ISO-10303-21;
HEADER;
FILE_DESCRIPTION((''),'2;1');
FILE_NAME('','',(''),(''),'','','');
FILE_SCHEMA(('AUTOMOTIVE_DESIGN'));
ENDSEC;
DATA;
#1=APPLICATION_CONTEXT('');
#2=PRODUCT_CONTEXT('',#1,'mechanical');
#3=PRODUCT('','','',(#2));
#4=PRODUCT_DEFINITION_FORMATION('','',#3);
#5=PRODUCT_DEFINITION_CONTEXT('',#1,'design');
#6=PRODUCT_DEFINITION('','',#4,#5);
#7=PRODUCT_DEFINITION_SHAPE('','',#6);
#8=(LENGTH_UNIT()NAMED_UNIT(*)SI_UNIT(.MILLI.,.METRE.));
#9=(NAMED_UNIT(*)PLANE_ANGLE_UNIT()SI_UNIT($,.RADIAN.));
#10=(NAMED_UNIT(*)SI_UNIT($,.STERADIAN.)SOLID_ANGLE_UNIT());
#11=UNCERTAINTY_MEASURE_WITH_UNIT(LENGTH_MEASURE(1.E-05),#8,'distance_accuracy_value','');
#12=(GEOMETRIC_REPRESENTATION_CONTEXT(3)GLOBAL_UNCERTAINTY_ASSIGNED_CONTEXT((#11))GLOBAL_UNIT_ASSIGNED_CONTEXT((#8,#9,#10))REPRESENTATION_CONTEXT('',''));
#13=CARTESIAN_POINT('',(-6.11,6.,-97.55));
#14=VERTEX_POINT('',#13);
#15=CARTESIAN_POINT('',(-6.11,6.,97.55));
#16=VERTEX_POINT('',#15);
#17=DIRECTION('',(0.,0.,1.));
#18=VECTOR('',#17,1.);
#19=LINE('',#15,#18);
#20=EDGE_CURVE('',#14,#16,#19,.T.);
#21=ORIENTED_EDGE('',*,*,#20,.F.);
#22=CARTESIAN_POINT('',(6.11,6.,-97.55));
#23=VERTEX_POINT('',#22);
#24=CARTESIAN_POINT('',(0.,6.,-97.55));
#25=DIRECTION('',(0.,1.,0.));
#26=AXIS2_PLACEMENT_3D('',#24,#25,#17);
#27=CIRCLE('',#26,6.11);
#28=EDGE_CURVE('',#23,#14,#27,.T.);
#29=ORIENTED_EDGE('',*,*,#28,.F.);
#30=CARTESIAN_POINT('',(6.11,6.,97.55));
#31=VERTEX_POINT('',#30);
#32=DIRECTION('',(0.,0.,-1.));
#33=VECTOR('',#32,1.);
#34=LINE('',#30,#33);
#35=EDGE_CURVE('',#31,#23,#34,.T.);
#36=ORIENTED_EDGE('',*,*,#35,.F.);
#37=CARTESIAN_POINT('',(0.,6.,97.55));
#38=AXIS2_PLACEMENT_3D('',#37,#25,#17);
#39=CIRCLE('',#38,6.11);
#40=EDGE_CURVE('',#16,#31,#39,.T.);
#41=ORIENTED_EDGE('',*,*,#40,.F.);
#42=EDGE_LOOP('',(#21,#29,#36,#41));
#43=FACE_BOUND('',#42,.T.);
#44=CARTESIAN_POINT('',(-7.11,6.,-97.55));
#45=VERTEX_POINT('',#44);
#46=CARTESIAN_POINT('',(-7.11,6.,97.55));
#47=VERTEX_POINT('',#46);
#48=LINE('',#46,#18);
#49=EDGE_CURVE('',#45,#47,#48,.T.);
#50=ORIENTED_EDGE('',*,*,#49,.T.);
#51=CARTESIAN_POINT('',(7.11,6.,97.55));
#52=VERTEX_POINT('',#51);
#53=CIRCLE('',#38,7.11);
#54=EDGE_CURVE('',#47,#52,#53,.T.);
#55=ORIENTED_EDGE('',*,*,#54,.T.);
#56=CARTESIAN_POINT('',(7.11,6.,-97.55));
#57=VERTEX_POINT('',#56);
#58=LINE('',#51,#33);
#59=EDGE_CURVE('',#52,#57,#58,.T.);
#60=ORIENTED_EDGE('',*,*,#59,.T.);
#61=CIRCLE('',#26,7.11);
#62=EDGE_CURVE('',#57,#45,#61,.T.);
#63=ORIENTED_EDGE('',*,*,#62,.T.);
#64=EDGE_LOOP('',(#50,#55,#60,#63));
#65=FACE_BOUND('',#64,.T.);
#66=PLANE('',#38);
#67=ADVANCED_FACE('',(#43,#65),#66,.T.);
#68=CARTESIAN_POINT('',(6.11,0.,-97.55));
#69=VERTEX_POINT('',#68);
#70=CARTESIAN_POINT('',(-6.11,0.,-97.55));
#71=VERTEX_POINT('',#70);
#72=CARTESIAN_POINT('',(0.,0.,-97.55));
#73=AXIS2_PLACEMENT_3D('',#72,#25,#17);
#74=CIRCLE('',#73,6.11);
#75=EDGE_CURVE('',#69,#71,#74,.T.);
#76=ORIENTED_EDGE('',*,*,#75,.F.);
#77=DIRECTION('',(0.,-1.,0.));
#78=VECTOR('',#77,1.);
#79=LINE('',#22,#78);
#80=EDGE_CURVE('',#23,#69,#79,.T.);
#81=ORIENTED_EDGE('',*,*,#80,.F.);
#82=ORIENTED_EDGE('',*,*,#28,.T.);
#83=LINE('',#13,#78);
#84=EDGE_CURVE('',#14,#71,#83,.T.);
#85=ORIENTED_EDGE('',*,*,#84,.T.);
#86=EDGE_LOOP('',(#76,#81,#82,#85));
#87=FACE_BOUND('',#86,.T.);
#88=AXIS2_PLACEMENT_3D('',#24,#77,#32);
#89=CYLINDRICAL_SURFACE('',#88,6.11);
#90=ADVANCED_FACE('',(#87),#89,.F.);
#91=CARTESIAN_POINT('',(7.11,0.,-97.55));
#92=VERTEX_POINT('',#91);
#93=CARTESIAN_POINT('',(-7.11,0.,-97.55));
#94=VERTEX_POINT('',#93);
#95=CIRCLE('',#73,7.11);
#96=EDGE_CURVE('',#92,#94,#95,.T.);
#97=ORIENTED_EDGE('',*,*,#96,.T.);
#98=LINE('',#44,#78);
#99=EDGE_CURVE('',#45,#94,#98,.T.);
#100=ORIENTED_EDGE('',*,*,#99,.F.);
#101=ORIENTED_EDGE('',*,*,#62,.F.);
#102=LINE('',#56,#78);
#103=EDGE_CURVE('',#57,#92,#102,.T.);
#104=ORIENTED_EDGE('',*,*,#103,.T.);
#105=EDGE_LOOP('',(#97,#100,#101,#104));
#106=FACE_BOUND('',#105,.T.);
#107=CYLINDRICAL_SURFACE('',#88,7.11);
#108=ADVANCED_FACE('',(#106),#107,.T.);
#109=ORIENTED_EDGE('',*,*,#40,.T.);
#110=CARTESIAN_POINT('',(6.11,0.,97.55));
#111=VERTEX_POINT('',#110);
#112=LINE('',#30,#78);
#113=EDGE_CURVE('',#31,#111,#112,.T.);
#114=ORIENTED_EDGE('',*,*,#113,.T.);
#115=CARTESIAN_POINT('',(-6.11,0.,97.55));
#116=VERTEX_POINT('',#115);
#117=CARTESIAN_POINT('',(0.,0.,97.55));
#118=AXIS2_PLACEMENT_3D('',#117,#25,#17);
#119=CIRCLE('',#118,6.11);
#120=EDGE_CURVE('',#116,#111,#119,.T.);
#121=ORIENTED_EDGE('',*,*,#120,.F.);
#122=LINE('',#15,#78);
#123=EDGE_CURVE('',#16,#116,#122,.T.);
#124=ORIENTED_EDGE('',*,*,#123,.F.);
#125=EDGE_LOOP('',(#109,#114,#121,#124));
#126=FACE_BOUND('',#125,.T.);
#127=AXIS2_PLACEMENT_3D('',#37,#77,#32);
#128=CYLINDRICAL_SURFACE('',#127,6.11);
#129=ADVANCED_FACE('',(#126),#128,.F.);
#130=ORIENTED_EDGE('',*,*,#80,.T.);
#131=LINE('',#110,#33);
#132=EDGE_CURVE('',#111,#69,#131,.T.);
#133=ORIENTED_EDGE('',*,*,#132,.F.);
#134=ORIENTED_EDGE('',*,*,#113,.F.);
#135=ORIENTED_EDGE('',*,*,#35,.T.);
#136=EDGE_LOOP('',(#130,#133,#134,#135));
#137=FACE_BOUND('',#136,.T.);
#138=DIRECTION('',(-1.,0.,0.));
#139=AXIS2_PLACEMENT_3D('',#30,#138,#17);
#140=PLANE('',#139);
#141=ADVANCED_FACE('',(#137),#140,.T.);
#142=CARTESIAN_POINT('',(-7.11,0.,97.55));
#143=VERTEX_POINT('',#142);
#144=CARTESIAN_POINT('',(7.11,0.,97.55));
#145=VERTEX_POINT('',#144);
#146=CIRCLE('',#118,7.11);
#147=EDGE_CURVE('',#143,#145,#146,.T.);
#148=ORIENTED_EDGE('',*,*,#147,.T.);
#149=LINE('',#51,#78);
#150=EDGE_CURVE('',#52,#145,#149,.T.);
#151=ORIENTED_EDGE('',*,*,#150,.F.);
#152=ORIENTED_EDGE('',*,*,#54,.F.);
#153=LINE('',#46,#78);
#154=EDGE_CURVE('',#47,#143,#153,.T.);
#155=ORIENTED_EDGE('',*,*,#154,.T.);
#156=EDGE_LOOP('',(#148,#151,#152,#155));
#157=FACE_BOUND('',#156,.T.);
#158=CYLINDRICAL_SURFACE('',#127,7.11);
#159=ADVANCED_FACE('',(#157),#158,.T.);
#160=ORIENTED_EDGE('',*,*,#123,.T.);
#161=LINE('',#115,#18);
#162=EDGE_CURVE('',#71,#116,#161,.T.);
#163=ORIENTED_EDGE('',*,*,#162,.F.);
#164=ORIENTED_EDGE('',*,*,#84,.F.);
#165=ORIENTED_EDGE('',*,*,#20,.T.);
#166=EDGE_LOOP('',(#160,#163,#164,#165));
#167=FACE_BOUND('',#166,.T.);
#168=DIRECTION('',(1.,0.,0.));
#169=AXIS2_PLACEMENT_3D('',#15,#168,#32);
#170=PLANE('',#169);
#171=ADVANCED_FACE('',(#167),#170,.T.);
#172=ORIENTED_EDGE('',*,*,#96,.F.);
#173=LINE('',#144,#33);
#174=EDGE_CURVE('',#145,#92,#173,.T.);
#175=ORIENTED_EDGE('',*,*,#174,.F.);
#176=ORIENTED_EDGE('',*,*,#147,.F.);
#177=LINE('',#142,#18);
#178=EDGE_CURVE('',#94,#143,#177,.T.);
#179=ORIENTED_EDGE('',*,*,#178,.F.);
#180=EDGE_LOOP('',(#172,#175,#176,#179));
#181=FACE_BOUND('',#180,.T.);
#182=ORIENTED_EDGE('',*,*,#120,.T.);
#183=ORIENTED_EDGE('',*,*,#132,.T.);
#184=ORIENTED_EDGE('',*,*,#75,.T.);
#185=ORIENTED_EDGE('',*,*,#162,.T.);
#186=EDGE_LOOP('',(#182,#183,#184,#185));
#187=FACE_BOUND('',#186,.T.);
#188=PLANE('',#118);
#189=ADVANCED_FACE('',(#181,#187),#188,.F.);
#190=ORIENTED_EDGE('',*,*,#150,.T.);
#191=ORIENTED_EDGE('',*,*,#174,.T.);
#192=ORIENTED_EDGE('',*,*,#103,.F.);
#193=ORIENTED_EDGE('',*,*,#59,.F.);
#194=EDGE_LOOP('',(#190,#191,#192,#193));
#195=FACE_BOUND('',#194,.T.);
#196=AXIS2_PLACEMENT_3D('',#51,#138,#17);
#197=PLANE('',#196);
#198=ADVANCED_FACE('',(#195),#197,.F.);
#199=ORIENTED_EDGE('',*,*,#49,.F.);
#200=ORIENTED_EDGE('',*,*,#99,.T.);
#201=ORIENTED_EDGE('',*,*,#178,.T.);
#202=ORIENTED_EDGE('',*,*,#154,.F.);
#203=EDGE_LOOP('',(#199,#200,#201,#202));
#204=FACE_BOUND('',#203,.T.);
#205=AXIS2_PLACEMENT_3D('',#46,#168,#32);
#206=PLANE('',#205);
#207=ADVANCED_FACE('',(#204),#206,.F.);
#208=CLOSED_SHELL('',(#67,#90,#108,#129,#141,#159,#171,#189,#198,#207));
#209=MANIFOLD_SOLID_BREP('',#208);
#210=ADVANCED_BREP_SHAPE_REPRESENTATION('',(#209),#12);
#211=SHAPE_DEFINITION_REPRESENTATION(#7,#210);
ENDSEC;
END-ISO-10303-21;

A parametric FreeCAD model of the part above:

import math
import FreeCAD as App
import Part
import Sketcher
Q = App.Units.Quantity

doc = App.newDocument("Part")
body = doc.addObject("PartDesign::Body", "Body")

sketch1 = doc.addObject("Sketcher::SketchObject", "Sketch")
body.addObject(sketch1)
sketch1.AttachmentSupport = (doc.XZ_Plane, [""])
sketch1.MapMode = "FlatFace"
sketch1.addGeometry(Part.LineSegment(App.Vector(-7, -98, 0), App.Vector(-7, 98, 0)), False)
sketch1.addGeometry(Part.ArcOfCircle(Part.Circle(App.Vector(0, 98, 0), App.Vector(0, 0, 1), 7), math.radians(0), math.radians(180)), False)
sketch1.addGeometry(Part.LineSegment(App.Vector(7, 98, 0), App.Vector(7, -98, 0)), False)
sketch1.addGeometry(Part.ArcOfCircle(Part.Circle(App.Vector(0, -98, 0), App.Vector(0, 0, 1), 7), math.radians(180), math.radians(360)), False)
sketch1.addGeometry(Part.LineSegment(App.Vector(-6, 98, 0), App.Vector(-6, -98, 0)), False)
sketch1.addGeometry(Part.ArcOfCircle(Part.Circle(App.Vector(0, -98, 0), App.Vector(0, 0, 1), 6), math.radians(180), math.radians(360)), False)
sketch1.addGeometry(Part.LineSegment(App.Vector(6, -98, 0), App.Vector(6, 98, 0)), False)
sketch1.addGeometry(Part.ArcOfCircle(Part.Circle(App.Vector(0, 98, 0), App.Vector(0, 0, 1), 6), math.radians(0), math.radians(180)), False)
sketch1.addConstraint(Sketcher.Constraint("Tangent", 0, 2, 1, 2))
sketch1.addConstraint(Sketcher.Constraint("Tangent", 1, 1, 2, 1))
sketch1.addConstraint(Sketcher.Constraint("Tangent", 2, 2, 3, 2))
sketch1.addConstraint(Sketcher.Constraint("Tangent", 3, 1, 0, 1))
sketch1.addConstraint(Sketcher.Constraint("Tangent", 4, 2, 5, 1))
sketch1.addConstraint(Sketcher.Constraint("Tangent", 5, 2, 6, 1))
sketch1.addConstraint(Sketcher.Constraint("Tangent", 6, 2, 7, 1))
sketch1.addConstraint(Sketcher.Constraint("Tangent", 7, 2, 4, 1))
sketch1.addConstraint(Sketcher.Constraint("Vertical", 0))
sketch1.addConstraint(Sketcher.Constraint("Vertical", 2))
sketch1.addConstraint(Sketcher.Constraint("Vertical", 4))
sketch1.addConstraint(Sketcher.Constraint("Vertical", 6))
sketch1.addConstraint(Sketcher.Constraint("Coincident", 5, 3, 3, 3))
sketch1.addConstraint(Sketcher.Constraint("Symmetric", 1, 3, 3, 3, -1, 1))
sketch1.addConstraint(Sketcher.Constraint("Horizontal", 7, 3, 0, 2))
sketch1.addConstraint(Sketcher.Constraint("Radius", 1, Q("7.11 mm")))
sketch1.addConstraint(Sketcher.Constraint("Radius", 5, Q("6.11 mm")))
sketch1.addConstraint(Sketcher.Constraint("DistanceY", 0, 1, 0, 2, Q("195.1 mm")))
pad1 = doc.addObject("PartDesign::Pad", "Pad")
body.addObject(pad1)
pad1.Profile = sketch1
pad1.Length = 6
pad1.Reversed = True

doc.recompute()
